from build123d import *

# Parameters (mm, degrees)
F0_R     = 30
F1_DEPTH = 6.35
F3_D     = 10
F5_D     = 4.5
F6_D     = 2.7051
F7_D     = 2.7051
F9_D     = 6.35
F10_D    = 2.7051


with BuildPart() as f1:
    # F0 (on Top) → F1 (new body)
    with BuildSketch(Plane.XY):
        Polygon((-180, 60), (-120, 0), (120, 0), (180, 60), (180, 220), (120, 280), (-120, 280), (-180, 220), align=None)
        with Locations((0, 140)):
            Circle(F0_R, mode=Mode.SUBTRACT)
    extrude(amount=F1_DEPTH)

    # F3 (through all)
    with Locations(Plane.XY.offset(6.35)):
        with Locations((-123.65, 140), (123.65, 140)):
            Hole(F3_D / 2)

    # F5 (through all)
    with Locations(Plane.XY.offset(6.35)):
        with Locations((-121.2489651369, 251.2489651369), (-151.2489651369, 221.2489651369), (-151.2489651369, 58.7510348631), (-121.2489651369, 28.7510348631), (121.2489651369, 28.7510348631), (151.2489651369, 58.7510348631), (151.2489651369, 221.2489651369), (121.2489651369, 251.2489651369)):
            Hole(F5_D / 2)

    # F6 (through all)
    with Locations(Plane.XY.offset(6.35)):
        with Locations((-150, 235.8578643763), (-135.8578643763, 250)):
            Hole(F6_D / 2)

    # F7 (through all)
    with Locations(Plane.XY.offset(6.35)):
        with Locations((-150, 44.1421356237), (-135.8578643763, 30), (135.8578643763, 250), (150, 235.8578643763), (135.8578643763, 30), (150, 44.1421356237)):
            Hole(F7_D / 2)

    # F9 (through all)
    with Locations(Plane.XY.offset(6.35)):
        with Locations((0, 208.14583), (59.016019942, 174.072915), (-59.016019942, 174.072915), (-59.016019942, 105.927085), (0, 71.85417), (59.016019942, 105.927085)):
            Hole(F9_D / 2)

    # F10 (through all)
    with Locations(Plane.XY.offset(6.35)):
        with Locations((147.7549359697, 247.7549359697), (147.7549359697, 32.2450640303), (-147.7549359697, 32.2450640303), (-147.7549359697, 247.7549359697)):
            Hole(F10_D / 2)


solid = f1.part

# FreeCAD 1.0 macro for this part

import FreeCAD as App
import Part
import Sketcher

V = App.Vector
Q = App.Units.Quantity


def add_polygon(sketch, points):
    """Adds a closed chain of lines whose ends are joined by coincident constraints."""
    first, n = sketch.GeometryCount, len(points)
    for a, b in zip(points, points[1:] + points[:1]):
        sketch.addGeometry(Part.LineSegment(App.Vector(*a, 0), App.Vector(*b, 0)), False)
    for i in range(n):
        sketch.addConstraint(Sketcher.Constraint("Coincident", first + i, 2, first + (i + 1) % n, 1))

doc = App.newDocument("Part")
params = doc.addObject("Spreadsheet::Sheet", "Params")
for row, (alias, value) in enumerate([
    ("sketch1_diameter", "60 mm"),
    ("sketch1_width", "240 mm"),
    ("sketch1_height", "160 mm"),
    ("pad1_length", "6.35 mm"),
    ("sketch2_diameter", "10 mm"),
    ("hole_diameter", "10 mm"),
    ("sketch3_diameter", "4.5 mm"),
    ("hole2_diameter", "4.5 mm"),
    ("hole3_diameter", "2.7051 mm"),
    ("hole4_diameter", "2.7051 mm"),
    ("sketch6_diameter", "6.35 mm"),
    ("hole5_diameter", "6.35 mm"),
    ("hole6_diameter", "2.7051 mm"),
], start=1):
    params.set(f"A{row}", alias)
    params.set(f"B{row}", "=" + value)
    params.setAlias(f"B{row}", alias)

body = doc.addObject("PartDesign::Body", "Body")

sketch1 = doc.addObject("Sketcher::SketchObject", "Sketch")
body.addObject(sketch1)
sketch1.AttachmentSupport = (doc.XY_Plane, [""])
sketch1.MapMode = "FlatFace"
add_polygon(sketch1, [(-180, 60), (-120, 0), (120, 0), (180, 60), (180, 220), (120, 280), (-120, 280), (-180, 220)])
sketch1.addGeometry(Part.Circle(V(0, 140, 0), V(0, 0, 1), 30), False)
sketch1.addConstraint([
    Sketcher.Constraint("Horizontal", 1),
    Sketcher.Constraint("Vertical", 3),
    Sketcher.Constraint("Horizontal", 5),
    Sketcher.Constraint("Vertical", 7),
    Sketcher.Constraint("Symmetric", 0, 2, 1, 2, -1, 1),
    Sketcher.Constraint("Symmetric", 3, 2, 6, 2, -2),
    Sketcher.Constraint("PointOnObject", 8, 3, -2),
    Sketcher.Constraint("Perpendicular", 0, 2),
    Sketcher.Constraint("Perpendicular", 2, 4),
    Sketcher.Constraint("Perpendicular", 4, 6),
    Sketcher.Constraint("Horizontal", 2, 2, 7, 2),
    Sketcher.Constraint("Vertical", 1, 2, 4, 2),
    Sketcher.Constraint("Diameter", 8, Q("60 mm")),
    Sketcher.Constraint("DistanceX", 1, 1, 1, 2, Q("240 mm")),
    Sketcher.Constraint("DistanceY", 3, 1, 3, 2, Q("160 mm")),
    Sketcher.Constraint("DistanceY", -1, 1, 8, 3, Q("140 mm")),
    Sketcher.Constraint("DistanceX", -1, 1, 2, 2, Q("180 mm")),
])
sketch1.setExpression("Constraints[20]", "Params.sketch1_diameter")
sketch1.setExpression("Constraints[21]", "Params.sketch1_width")
sketch1.setExpression("Constraints[22]", "Params.sketch1_height")
pad1 = doc.addObject("PartDesign::Pad", "Pad")
body.addObject(pad1)
pad1.Profile = sketch1
pad1.setExpression("Length", "Params.pad1_length")

sketch2 = doc.addObject("Sketcher::SketchObject", "Sketch001")
body.addObject(sketch2)
sketch2.AttachmentSupport = (doc.XY_Plane, [""])
sketch2.MapMode = "FlatFace"
sketch2.AttachmentOffset = App.Placement(V(0, 0, 6.35), App.Rotation())
sketch2.addGeometry([
    Part.Circle(V(-123.65, 140, 0), V(0, 0, 1), 5),
    Part.Circle(V(123.65, 140, 0), V(0, 0, 1), 5),
], False)
sketch2.addConstraint([
    Sketcher.Constraint("Equal", 0, 1),
    Sketcher.Constraint("Symmetric", 0, 3, 1, 3, -2),
    Sketcher.Constraint("Diameter", 0, Q("10 mm")),
    Sketcher.Constraint("DistanceY", -1, 1, 0, 3, Q("140 mm")),
    Sketcher.Constraint("DistanceX", 0, 3, 1, 3, Q("247.3 mm")),
])
sketch2.setExpression("Constraints[2]", "Params.sketch2_diameter")
doc.recompute()
hole = doc.addObject("PartDesign::Hole", "Hole")
body.addObject(hole)
hole.Profile = sketch2
hole.ThreadType = "None"
hole.setExpression("Diameter", "Params.hole_diameter")
hole.DepthType = "ThroughAll"

sketch3 = doc.addObject("Sketcher::SketchObject", "Sketch002")
body.addObject(sketch3)
sketch3.AttachmentSupport = (doc.XY_Plane, [""])
sketch3.MapMode = "FlatFace"
sketch3.AttachmentOffset = App.Placement(V(0, 0, 6.35), App.Rotation())
sketch3.addGeometry([
    Part.Circle(V(-121.248965, 251.248965, 0), V(0, 0, 1), 2.25),
    Part.Circle(V(-151.248965, 221.248965, 0), V(0, 0, 1), 2.25),
    Part.Circle(V(-151.248965, 58.751035, 0), V(0, 0, 1), 2.25),
    Part.Circle(V(-121.248965, 28.751035, 0), V(0, 0, 1), 2.25),
    Part.Circle(V(121.248965, 28.751035, 0), V(0, 0, 1), 2.25),
    Part.Circle(V(151.248965, 58.751035, 0), V(0, 0, 1), 2.25),
    Part.Circle(V(151.248965, 221.248965, 0), V(0, 0, 1), 2.25),
    Part.Circle(V(121.248965, 251.248965, 0), V(0, 0, 1), 2.25),
], False)
sketch3.addConstraint([
    Sketcher.Constraint("Equal", 0, 1),
    Sketcher.Constraint("Equal", 1, 2),
    Sketcher.Constraint("Equal", 2, 3),
    Sketcher.Constraint("Equal", 3, 4),
    Sketcher.Constraint("Equal", 4, 5),
    Sketcher.Constraint("Equal", 5, 6),
    Sketcher.Constraint("Equal", 6, 7),
    Sketcher.Constraint("Symmetric", 3, 3, 4, 3, -2),
    Sketcher.Constraint("Symmetric", 2, 3, 5, 3, -2),
    Sketcher.Constraint("Symmetric", 1, 3, 6, 3, -2),
    Sketcher.Constraint("Symmetric", 0, 3, 7, 3, -2),
    Sketcher.Constraint("Vertical", 1, 3, 2, 3),
    Sketcher.Constraint("Vertical", 0, 3, 3, 3),
    Sketcher.Constraint("Diameter", 0, Q("4.5 mm")),
    Sketcher.Constraint("DistanceX", 1, 3, 0, 3, Q("30 mm")),
    Sketcher.Constraint("DistanceY", 1, 3, 0, 3, Q("30 mm")),
    Sketcher.Constraint("DistanceY", 3, 3, 2, 3, Q("30 mm")),
    Sketcher.Constraint("DistanceY", 2, 3, 1, 3, Q("162.49793 mm")),
    Sketcher.Constraint("DistanceX", 3, 3, 4, 3, Q("242.49793 mm")),
    Sketcher.Constraint("DistanceY", -1, 1, 0, 3, Q("251.248965 mm")),
])
sketch3.setExpression("Constraints[13]", "Params.sketch3_diameter")
doc.recompute()
hole2 = doc.addObject("PartDesign::Hole", "Hole001")
body.addObject(hole2)
hole2.Profile = sketch3
hole2.ThreadType = "None"
hole2.setExpression("Diameter", "Params.hole2_diameter")
hole2.DepthType = "ThroughAll"

sketch4 = doc.addObject("Sketcher::SketchObject", "Sketch003")
body.addObject(sketch4)
sketch4.AttachmentSupport = (doc.XY_Plane, [""])
sketch4.MapMode = "FlatFace"
sketch4.AttachmentOffset = App.Placement(V(0, 0, 6.35), App.Rotation())
sketch4.addGeometry([
    Part.Circle(V(-150, 235.857864, 0), V(0, 0, 1), 1.35255),
    Part.Circle(V(-135.857864, 250, 0), V(0, 0, 1), 1.35255),
], False)
sketch4.addConstraint([
    Sketcher.Constraint("Equal", 0, 1),
    Sketcher.Constraint("DistanceX", 0, 3, -1, 1, Q("150 mm")),
    Sketcher.Constraint("DistanceY", -1, 1, 1, 3, Q("250 mm")),
    Sketcher.Constraint("Diameter", 0, Q("2.7051 mm")),
    Sketcher.Constraint("DistanceY", -1, 1, 0, 3, Q("235.857864 mm")),
    Sketcher.Constraint("DistanceX", 1, 3, -1, 1, Q("135.857864 mm")),
])
doc.recompute()
hole3 = doc.addObject("PartDesign::Hole", "Hole002")
body.addObject(hole3)
hole3.Profile = sketch4
hole3.ThreadType = "None"
hole3.setExpression("Diameter", "Params.hole3_diameter")
hole3.DepthType = "ThroughAll"

sketch5 = doc.addObject("Sketcher::SketchObject", "Sketch004")
body.addObject(sketch5)
sketch5.AttachmentSupport = (doc.XY_Plane, [""])
sketch5.MapMode = "FlatFace"
sketch5.AttachmentOffset = App.Placement(V(0, 0, 6.35), App.Rotation())
sketch5.addGeometry([
    Part.Circle(V(-150, 44.142136, 0), V(0, 0, 1), 1.35255),
    Part.Circle(V(-135.857864, 30, 0), V(0, 0, 1), 1.35255),
    Part.Circle(V(135.857864, 250, 0), V(0, 0, 1), 1.35255),
    Part.Circle(V(150, 235.857864, 0), V(0, 0, 1), 1.35255),
    Part.Circle(V(135.857864, 30, 0), V(0, 0, 1), 1.35255),
    Part.Circle(V(150, 44.142136, 0), V(0, 0, 1), 1.35255),
], False)
sketch5.addConstraint([
    Sketcher.Constraint("Equal", 0, 1),
    Sketcher.Constraint("Equal", 1, 2),
    Sketcher.Constraint("Equal", 2, 3),
    Sketcher.Constraint("Equal", 3, 4),
    Sketcher.Constraint("Equal", 4, 5),
    Sketcher.Constraint("Symmetric", 1, 3, 4, 3, -2),
    Sketcher.Constraint("Symmetric", 0, 3, 5, 3, -2),
    Sketcher.Constraint("Vertical", 2, 3, 4, 3),
    Sketcher.Constraint("Vertical", 3, 3, 5, 3),
    Sketcher.Constraint("DistanceX", 0, 3, -1, 1, Q("150 mm")),
    Sketcher.Constraint("DistanceY", -1, 1, 1, 3, Q("30 mm")),
    Sketcher.Constraint("DistanceY", -1, 1, 2, 3, Q("250 mm")),
    Sketcher.Constraint("Diameter", 0, Q("2.7051 mm")),
    Sketcher.Constraint("DistanceX", 1, 3, 2, 3, Q("271.715729 mm")),
    Sketcher.Constraint("DistanceY", 0, 3, 3, 3, Q("191.715729 mm")),
    Sketcher.Constraint("DistanceY", -1, 1, 0, 3, Q("44.142136 mm")),
])
doc.recompute()
hole4 = doc.addObject("PartDesign::Hole", "Hole003")
body.addObject(hole4)
hole4.Profile = sketch5
hole4.ThreadType = "None"
hole4.setExpression("Diameter", "Params.hole4_diameter")
hole4.DepthType = "ThroughAll"

sketch6 = doc.addObject("Sketcher::SketchObject", "Sketch005")
body.addObject(sketch6)
sketch6.AttachmentSupport = (doc.XY_Plane, [""])
sketch6.MapMode = "FlatFace"
sketch6.AttachmentOffset = App.Placement(V(0, 0, 6.35), App.Rotation())
sketch6.addGeometry([
    Part.Circle(V(0, 208.14583, 0), V(0, 0, 1), 3.175),
    Part.Circle(V(59.01602, 174.072915, 0), V(0, 0, 1), 3.175),
    Part.Circle(V(-59.01602, 174.072915, 0), V(0, 0, 1), 3.175),
    Part.Circle(V(-59.01602, 105.927085, 0), V(0, 0, 1), 3.175),
    Part.Circle(V(0, 71.85417, 0), V(0, 0, 1), 3.175),
    Part.Circle(V(59.01602, 105.927085, 0), V(0, 0, 1), 3.175),
], False)
sketch6.addConstraint([
    Sketcher.Constraint("Equal", 0, 1),
    Sketcher.Constraint("Equal", 1, 2),
    Sketcher.Constraint("Equal", 2, 3),
    Sketcher.Constraint("Equal", 3, 4),
    Sketcher.Constraint("Equal", 4, 5),
    Sketcher.Constraint("Symmetric", 1, 3, 2, 3, -2),
    Sketcher.Constraint("Symmetric", 3, 3, 5, 3, -2),
    Sketcher.Constraint("PointOnObject", 0, 3, -2),
    Sketcher.Constraint("PointOnObject", 4, 3, -2),
    Sketcher.Constraint("Vertical", 2, 3, 3, 3),
    Sketcher.Constraint("Diameter", 0, Q("6.35 mm")),
    Sketcher.Constraint("DistanceY", -1, 1, 0, 3, Q("208.14583 mm")),
    Sketcher.Constraint("DistanceX", -1, 1, 1, 3, Q("59.01602 mm")),
    Sketcher.Constraint("DistanceY", -1, 1, 4, 3, Q("71.85417 mm")),
    Sketcher.Constraint("DistanceY", 3, 3, 2, 3, Q("68.14583 mm")),
    Sketcher.Constraint("DistanceY", -1, 1, 1, 3, Q("174.072915 mm")),
])
sketch6.setExpression("Constraints[10]", "Params.sketch6_diameter")
doc.recompute()
hole5 = doc.addObject("PartDesign::Hole", "Hole004")
body.addObject(hole5)
hole5.Profile = sketch6
hole5.ThreadType = "None"
hole5.setExpression("Diameter", "Params.hole5_diameter")
hole5.DepthType = "ThroughAll"

sketch7 = doc.addObject("Sketcher::SketchObject", "Sketch006")
body.addObject(sketch7)
sketch7.AttachmentSupport = (doc.XY_Plane, [""])
sketch7.MapMode = "FlatFace"
sketch7.AttachmentOffset = App.Placement(V(0, 0, 6.35), App.Rotation())
sketch7.addGeometry([
    Part.Circle(V(147.754936, 247.754936, 0), V(0, 0, 1), 1.35255),
    Part.Circle(V(147.754936, 32.245064, 0), V(0, 0, 1), 1.35255),
    Part.Circle(V(-147.754936, 32.245064, 0), V(0, 0, 1), 1.35255),
    Part.Circle(V(-147.754936, 247.754936, 0), V(0, 0, 1), 1.35255),
], False)
sketch7.addConstraint([
    Sketcher.Constraint("Equal", 0, 1),
    Sketcher.Constraint("Equal", 1, 2),
    Sketcher.Constraint("Equal", 2, 3),
    Sketcher.Constraint("Symmetric", 1, 3, 2, 3, -2),
    Sketcher.Constraint("Symmetric", 0, 3, 3, 3, -2),
    Sketcher.Constraint("Vertical", 0, 3, 1, 3),
    Sketcher.Constraint("Diameter", 0, Q("2.7051 mm")),
    Sketcher.Constraint("DistanceY", 1, 3, 0, 3, Q("215.509872 mm")),
    Sketcher.Constraint("DistanceX", 2, 3, 1, 3, Q("295.509872 mm")),
    Sketcher.Constraint("DistanceY", -1, 1, 0, 3, Q("247.754936 mm")),
])
doc.recompute()
hole6 = doc.addObject("PartDesign::Hole", "Hole005")
body.addObject(hole6)
hole6.Profile = sketch7
hole6.ThreadType = "None"
hole6.setExpression("Diameter", "Params.hole6_diameter")
hole6.DepthType = "ThroughAll"

doc.recompute()
